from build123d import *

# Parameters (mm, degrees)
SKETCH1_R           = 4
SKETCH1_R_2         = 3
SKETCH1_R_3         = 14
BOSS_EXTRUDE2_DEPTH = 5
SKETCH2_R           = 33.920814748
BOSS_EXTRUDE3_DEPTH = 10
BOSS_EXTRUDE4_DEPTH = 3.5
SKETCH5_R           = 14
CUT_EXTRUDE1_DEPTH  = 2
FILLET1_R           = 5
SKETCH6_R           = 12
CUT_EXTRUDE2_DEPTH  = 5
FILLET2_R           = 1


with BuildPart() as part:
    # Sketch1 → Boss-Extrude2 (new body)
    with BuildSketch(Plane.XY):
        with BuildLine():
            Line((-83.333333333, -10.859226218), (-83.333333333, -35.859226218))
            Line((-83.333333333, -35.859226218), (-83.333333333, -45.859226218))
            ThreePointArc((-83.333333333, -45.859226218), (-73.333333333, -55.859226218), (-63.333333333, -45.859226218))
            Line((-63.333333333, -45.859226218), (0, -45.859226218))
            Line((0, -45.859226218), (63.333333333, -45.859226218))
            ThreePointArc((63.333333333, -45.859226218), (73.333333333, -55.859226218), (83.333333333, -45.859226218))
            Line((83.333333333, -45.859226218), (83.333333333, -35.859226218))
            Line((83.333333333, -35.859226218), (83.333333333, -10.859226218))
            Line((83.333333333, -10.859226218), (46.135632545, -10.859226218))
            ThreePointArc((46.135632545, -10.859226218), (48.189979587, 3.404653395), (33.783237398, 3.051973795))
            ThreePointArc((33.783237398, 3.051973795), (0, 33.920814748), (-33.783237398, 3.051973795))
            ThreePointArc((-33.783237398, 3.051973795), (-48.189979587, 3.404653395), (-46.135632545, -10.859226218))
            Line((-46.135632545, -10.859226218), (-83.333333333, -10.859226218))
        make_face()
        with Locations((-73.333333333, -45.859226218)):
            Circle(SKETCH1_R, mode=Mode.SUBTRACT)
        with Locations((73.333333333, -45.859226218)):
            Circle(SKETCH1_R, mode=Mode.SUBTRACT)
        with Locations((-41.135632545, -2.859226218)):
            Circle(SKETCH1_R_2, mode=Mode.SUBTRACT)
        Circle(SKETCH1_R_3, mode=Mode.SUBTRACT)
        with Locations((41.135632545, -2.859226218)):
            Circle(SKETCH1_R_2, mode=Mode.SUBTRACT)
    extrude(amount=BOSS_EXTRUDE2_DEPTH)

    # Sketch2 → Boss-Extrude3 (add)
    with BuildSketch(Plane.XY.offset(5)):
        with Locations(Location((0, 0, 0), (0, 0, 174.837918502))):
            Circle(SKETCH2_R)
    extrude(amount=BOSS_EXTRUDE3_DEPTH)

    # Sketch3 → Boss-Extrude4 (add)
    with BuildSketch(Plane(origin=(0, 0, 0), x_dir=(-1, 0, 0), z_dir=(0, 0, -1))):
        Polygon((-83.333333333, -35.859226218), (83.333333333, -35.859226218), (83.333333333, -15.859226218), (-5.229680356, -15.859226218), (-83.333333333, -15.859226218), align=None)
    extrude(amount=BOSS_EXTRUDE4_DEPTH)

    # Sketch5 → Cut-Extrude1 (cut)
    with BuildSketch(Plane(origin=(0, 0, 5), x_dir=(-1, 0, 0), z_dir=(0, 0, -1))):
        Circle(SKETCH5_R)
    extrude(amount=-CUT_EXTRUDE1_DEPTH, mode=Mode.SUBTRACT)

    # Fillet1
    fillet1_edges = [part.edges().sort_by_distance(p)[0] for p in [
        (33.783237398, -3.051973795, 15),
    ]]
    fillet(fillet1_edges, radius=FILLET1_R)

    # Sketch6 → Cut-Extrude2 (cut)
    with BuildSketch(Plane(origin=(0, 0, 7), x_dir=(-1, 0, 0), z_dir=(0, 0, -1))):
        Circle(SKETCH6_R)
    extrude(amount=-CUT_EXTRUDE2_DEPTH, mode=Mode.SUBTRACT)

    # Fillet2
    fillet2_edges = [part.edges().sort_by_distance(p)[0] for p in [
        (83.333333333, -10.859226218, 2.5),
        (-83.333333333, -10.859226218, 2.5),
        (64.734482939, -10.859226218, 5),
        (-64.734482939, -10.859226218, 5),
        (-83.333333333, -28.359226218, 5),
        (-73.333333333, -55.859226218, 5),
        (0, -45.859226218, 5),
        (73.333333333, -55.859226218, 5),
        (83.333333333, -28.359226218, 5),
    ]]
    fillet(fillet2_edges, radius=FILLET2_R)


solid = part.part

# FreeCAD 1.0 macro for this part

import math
import FreeCAD as App
import Part
import Sketcher
from FreeCAD import Vector
Q = App.Units.Quantity


def edges_at(feature, points):
    """Names of the edges that pass closest to the given points."""
    edges = feature.Shape.Edges
    near = lambda p: min(range(len(edges)), key=lambda i: edges[i].distToShape(Part.Vertex(*p))[0])
    return sorted({f"Edge{near(p) + 1}" for p in points})


def add_polygon(sketch, points):
    """Adds a closed chain of lines whose ends are joined by coincident constraints."""
    first, n = sketch.GeometryCount, len(points)
    for a, b in zip(points, points[1:] + points[:1]):
        sketch.addGeometry(Part.LineSegment(App.Vector(*a, 0), App.Vector(*b, 0)), False)
    for i in range(n):
        sketch.addConstraint(Sketcher.Constraint("Coincident", first + i, 2, first + (i + 1) % n, 1))

doc = App.newDocument("Part")
body = doc.addObject("PartDesign::Body", "Body")

# Sketch on XY plane
sketch1 = body.newObject("Sketcher::SketchObject", "Sketch")
sketch1.AttachmentSupport = (doc.getObject("XY_Plane"), [""])
sketch1.MapMode = "FlatFace"
sketch1.addGeometry([
    Part.LineSegment(Vector(-83.333333, -10.859226, 0), Vector(-83.333333, -45.859226, 0)),  # 0
    Part.ArcOfCircle(Part.Circle(Vector(-73.333333, -45.859226, 0), Vector(0, 0, 1), 10), math.radians(180), math.radians(360)),  # 1
    Part.LineSegment(Vector(-63.333333, -45.859226, 0), Vector(63.333333, -45.859226, 0)),  # 2
    Part.ArcOfCircle(Part.Circle(Vector(73.333333, -45.859226, 0), Vector(0, 0, 1), 10), math.radians(180), math.radians(360)),  # 3
    Part.LineSegment(Vector(83.333333, -45.859226, 0), Vector(83.333333, -10.859226, 0)),  # 4
    Part.LineSegment(Vector(83.333333, -10.859226, 0), Vector(46.135633, -10.859226, 0)),  # 5
    Part.ArcOfCircle(Part.Circle(Vector(41.135633, -2.859226, 0), Vector(0, 0, 1), 9.433981), math.radians(-57.994617), math.radians(141.201313)),  # 6
    Part.ArcOfCircle(Part.Circle(Vector(0, 0, 0), Vector(0, 0, 1), 33.920815), math.radians(5.162081), math.radians(174.837919)),  # 7
    Part.ArcOfCircle(Part.Circle(Vector(-41.135633, -2.859226, 0), Vector(0, 0, 1), 9.433981), math.radians(38.798687), math.radians(237.994617)),  # 8
    Part.LineSegment(Vector(-46.135633, -10.859226, 0), Vector(-83.333333, -10.859226, 0)),  # 9
    Part.Circle(Vector(-73.333333, -45.859226, 0), Vector(0, 0, 1), 4),  # 10
    Part.Circle(Vector(73.333333, -45.859226, 0), Vector(0, 0, 1), 4),  # 11
    Part.Circle(Vector(-41.135633, -2.859226, 0), Vector(0, 0, 1), 3),  # 12
    Part.Circle(Vector(41.135633, -2.859226, 0), Vector(0, 0, 1), 3),  # 13
    Part.Circle(Vector(0, 0, 0), Vector(0, 0, 1), 14),  # 14
], False)
sketch1.addConstraint([
    Sketcher.Constraint("Tangent", 0, 2, 1, 1),
    Sketcher.Constraint("Coincident", 1, 2, 2, 1),
    Sketcher.Constraint("Coincident", 2, 2, 3, 1),
    Sketcher.Constraint("Tangent", 3, 2, 4, 1),
    Sketcher.Constraint("Coincident", 4, 2, 5, 1),
    Sketcher.Constraint("Coincident", 5, 2, 6, 1),
    Sketcher.Constraint("Coincident", 6, 2, 7, 1),
    Sketcher.Constraint("Coincident", 7, 2, 8, 1),
    Sketcher.Constraint("Coincident", 8, 2, 9, 1),
    Sketcher.Constraint("Coincident", 9, 2, 0, 1),
    Sketcher.Constraint("Vertical", 0),
    Sketcher.Constraint("Horizontal", 2),
    Sketcher.Constraint("Vertical", 4),
    Sketcher.Constraint("Horizontal", 5),
    Sketcher.Constraint("Horizontal", 9),
    Sketcher.Constraint("Coincident", 7, 3, -1, 1),
    Sketcher.Constraint("Coincident", 14, 3, -1, 1),
    Sketcher.Constraint("Coincident", 10, 3, 1, 3),
    Sketcher.Constraint("Coincident", 11, 3, 3, 3),
    Sketcher.Constraint("Coincident", 12, 3, 8, 3),
    Sketcher.Constraint("Coincident", 13, 3, 6, 3),
    Sketcher.Constraint("Equal", 1, 3),
    Sketcher.Constraint("Equal", 6, 8),
    Sketcher.Constraint("Equal", 10, 11),
    Sketcher.Constraint("Equal", 12, 13),
    Sketcher.Constraint("Symmetric", 1, 3, 3, 3, -2),
    Sketcher.Constraint("Symmetric", 6, 3, 8, 3, -2),
    Sketcher.Constraint("Horizontal", 0, 2, 1, 2),
    Sketcher.Constraint("Horizontal", 5, 2, 8, 2),
    Sketcher.Constraint("Diameter", 10, Q("8 mm")),
    Sketcher.Constraint("Diameter", 12, Q("6 mm")),
    Sketcher.Constraint("Diameter", 14, Q("28 mm")),
    Sketcher.Constraint("Radius", 1, Q("10 mm")),
    Sketcher.Constraint("DistanceY", 0, 2, 0, 1, Q("35 mm")),
    Sketcher.Constraint("DistanceY", 3, 3, 6, 3, Q("43 mm")),
    Sketcher.Constraint("DistanceX", 6, 3, 5, 2, Q("5 mm")),
    Sketcher.Constraint("DistanceX", 5, 2, 5, 1, Q("37.197701 mm")),
    Sketcher.Constraint("Radius", 7, Q("33.920815 mm")),
    Sketcher.Constraint("DistanceY", 6, 3, 6, 2, Q("5.9112 mm")),
    Sketcher.Constraint("DistanceX", 2, 1, 2, 2, Q("126.666667 mm")),
])
pad1 = body.newObject("PartDesign::Pad", "Pad")
pad1.Profile = sketch1
pad1.Length = 5

# Sketch on XY plane
sketch2 = body.newObject("Sketcher::SketchObject", "Sketch001")
sketch2.AttachmentSupport = (doc.getObject("XY_Plane"), [""])
sketch2.MapMode = "FlatFace"
sketch2.AttachmentOffset = App.Placement(Vector(0, 0, 5), App.Rotation())
sketch2.addGeometry(Part.Circle(Vector(0, 0, 0), Vector(0, 0, 1), 33.920815), False)
sketch2.addConstraint([
    Sketcher.Constraint("Coincident", 0, 3, -1, 1),
    Sketcher.Constraint("Diameter", 0, Q("67.841629 mm")),
])
pad2 = body.newObject("PartDesign::Pad", "Pad001")
pad2.Profile = sketch2
pad2.Length = 10

# Sketch on XY plane
sketch3 = body.newObject("Sketcher::SketchObject", "Sketch002")
sketch3.AttachmentSupport = (doc.getObject("XY_Plane"), [""])
sketch3.MapMode = "FlatFace"
add_polygon(sketch3, [(83.333333, -35.859226), (-83.333333, -35.859226), (-83.333333, -15.859226), (83.333333, -15.859226)])  # lines 0-3
sketch3.addConstraint([
    Sketcher.Constraint("Horizontal", 0),
    Sketcher.Constraint("Vertical", 1),
    Sketcher.Constraint("Horizontal", 2),
    Sketcher.Constraint("Vertical", 3),
    Sketcher.Constraint("DistanceY", 1, 1, 1, 2, Q("20 mm")),
    Sketcher.Constraint("DistanceX", 0, 2, 0, 1, Q("166.666667 mm")),
    Sketcher.Constraint("DistanceX", 0, 2, -1, 1, Q("83.333333 mm")),
    Sketcher.Constraint("DistanceY", 0, 2, -1, 1, Q("35.859226 mm")),
])
pad3 = body.newObject("PartDesign::Pad", "Pad002")
pad3.Profile = sketch3
pad3.Length = 3.5
pad3.Reversed = True

# Sketch on XY plane
sketch4 = body.newObject("Sketcher::SketchObject", "Sketch003")
sketch4.AttachmentSupport = (doc.getObject("XY_Plane"), [""])
sketch4.MapMode = "FlatFace"
sketch4.AttachmentOffset = App.Placement(Vector(0, 0, 5), App.Rotation())
sketch4.addGeometry(Part.Circle(Vector(0, 0, 0), Vector(0, 0, 1), 14), False)
sketch4.addConstraint([
    Sketcher.Constraint("Coincident", 0, 3, -1, 1),
    Sketcher.Constraint("Diameter", 0, Q("28 mm")),
])
pocket1 = body.newObject("PartDesign::Pocket", "Pocket")
pocket1.Profile = sketch4
pocket1.Length = 2
pocket1.Reversed = True
doc.recompute()

fillet = body.newObject("PartDesign::Fillet", "Fillet")
fillet.Base = (pocket1, edges_at(pocket1, [(33.783, -3.052, 15)]))
fillet.Radius = 5

# Sketch on XY plane
sketch5 = body.newObject("Sketcher::SketchObject", "Sketch004")
sketch5.AttachmentSupport = (doc.getObject("XY_Plane"), [""])
sketch5.MapMode = "FlatFace"
sketch5.AttachmentOffset = App.Placement(Vector(0, 0, 7), App.Rotation())
sketch5.addGeometry(Part.Circle(Vector(0, 0, 0), Vector(0, 0, 1), 12), False)
sketch5.addConstraint([
    Sketcher.Constraint("Coincident", 0, 3, -1, 1),
    Sketcher.Constraint("Diameter", 0, Q("24 mm")),
])
pocket2 = body.newObject("PartDesign::Pocket", "Pocket001")
pocket2.Profile = sketch5
pocket2.Length = 5
pocket2.Reversed = True
doc.recompute()

fillet2 = body.newObject("PartDesign::Fillet", "Fillet001")
fillet2.Base = (pocket2, edges_at(pocket2, [
    (83.333, -10.859, 2.5),
    (-83.333, -10.859, 2.5),
    (64.734, -10.859, 5),
    (-64.734, -10.859, 5),
    (-83.333, -28.359, 5),
    (-73.333, -55.859, 5),
    (0, -45.859, 5),
    (73.333, -55.859, 5),
    (83.333, -28.359, 5),
]))
fillet2.Radius = 1

doc.recompute()
